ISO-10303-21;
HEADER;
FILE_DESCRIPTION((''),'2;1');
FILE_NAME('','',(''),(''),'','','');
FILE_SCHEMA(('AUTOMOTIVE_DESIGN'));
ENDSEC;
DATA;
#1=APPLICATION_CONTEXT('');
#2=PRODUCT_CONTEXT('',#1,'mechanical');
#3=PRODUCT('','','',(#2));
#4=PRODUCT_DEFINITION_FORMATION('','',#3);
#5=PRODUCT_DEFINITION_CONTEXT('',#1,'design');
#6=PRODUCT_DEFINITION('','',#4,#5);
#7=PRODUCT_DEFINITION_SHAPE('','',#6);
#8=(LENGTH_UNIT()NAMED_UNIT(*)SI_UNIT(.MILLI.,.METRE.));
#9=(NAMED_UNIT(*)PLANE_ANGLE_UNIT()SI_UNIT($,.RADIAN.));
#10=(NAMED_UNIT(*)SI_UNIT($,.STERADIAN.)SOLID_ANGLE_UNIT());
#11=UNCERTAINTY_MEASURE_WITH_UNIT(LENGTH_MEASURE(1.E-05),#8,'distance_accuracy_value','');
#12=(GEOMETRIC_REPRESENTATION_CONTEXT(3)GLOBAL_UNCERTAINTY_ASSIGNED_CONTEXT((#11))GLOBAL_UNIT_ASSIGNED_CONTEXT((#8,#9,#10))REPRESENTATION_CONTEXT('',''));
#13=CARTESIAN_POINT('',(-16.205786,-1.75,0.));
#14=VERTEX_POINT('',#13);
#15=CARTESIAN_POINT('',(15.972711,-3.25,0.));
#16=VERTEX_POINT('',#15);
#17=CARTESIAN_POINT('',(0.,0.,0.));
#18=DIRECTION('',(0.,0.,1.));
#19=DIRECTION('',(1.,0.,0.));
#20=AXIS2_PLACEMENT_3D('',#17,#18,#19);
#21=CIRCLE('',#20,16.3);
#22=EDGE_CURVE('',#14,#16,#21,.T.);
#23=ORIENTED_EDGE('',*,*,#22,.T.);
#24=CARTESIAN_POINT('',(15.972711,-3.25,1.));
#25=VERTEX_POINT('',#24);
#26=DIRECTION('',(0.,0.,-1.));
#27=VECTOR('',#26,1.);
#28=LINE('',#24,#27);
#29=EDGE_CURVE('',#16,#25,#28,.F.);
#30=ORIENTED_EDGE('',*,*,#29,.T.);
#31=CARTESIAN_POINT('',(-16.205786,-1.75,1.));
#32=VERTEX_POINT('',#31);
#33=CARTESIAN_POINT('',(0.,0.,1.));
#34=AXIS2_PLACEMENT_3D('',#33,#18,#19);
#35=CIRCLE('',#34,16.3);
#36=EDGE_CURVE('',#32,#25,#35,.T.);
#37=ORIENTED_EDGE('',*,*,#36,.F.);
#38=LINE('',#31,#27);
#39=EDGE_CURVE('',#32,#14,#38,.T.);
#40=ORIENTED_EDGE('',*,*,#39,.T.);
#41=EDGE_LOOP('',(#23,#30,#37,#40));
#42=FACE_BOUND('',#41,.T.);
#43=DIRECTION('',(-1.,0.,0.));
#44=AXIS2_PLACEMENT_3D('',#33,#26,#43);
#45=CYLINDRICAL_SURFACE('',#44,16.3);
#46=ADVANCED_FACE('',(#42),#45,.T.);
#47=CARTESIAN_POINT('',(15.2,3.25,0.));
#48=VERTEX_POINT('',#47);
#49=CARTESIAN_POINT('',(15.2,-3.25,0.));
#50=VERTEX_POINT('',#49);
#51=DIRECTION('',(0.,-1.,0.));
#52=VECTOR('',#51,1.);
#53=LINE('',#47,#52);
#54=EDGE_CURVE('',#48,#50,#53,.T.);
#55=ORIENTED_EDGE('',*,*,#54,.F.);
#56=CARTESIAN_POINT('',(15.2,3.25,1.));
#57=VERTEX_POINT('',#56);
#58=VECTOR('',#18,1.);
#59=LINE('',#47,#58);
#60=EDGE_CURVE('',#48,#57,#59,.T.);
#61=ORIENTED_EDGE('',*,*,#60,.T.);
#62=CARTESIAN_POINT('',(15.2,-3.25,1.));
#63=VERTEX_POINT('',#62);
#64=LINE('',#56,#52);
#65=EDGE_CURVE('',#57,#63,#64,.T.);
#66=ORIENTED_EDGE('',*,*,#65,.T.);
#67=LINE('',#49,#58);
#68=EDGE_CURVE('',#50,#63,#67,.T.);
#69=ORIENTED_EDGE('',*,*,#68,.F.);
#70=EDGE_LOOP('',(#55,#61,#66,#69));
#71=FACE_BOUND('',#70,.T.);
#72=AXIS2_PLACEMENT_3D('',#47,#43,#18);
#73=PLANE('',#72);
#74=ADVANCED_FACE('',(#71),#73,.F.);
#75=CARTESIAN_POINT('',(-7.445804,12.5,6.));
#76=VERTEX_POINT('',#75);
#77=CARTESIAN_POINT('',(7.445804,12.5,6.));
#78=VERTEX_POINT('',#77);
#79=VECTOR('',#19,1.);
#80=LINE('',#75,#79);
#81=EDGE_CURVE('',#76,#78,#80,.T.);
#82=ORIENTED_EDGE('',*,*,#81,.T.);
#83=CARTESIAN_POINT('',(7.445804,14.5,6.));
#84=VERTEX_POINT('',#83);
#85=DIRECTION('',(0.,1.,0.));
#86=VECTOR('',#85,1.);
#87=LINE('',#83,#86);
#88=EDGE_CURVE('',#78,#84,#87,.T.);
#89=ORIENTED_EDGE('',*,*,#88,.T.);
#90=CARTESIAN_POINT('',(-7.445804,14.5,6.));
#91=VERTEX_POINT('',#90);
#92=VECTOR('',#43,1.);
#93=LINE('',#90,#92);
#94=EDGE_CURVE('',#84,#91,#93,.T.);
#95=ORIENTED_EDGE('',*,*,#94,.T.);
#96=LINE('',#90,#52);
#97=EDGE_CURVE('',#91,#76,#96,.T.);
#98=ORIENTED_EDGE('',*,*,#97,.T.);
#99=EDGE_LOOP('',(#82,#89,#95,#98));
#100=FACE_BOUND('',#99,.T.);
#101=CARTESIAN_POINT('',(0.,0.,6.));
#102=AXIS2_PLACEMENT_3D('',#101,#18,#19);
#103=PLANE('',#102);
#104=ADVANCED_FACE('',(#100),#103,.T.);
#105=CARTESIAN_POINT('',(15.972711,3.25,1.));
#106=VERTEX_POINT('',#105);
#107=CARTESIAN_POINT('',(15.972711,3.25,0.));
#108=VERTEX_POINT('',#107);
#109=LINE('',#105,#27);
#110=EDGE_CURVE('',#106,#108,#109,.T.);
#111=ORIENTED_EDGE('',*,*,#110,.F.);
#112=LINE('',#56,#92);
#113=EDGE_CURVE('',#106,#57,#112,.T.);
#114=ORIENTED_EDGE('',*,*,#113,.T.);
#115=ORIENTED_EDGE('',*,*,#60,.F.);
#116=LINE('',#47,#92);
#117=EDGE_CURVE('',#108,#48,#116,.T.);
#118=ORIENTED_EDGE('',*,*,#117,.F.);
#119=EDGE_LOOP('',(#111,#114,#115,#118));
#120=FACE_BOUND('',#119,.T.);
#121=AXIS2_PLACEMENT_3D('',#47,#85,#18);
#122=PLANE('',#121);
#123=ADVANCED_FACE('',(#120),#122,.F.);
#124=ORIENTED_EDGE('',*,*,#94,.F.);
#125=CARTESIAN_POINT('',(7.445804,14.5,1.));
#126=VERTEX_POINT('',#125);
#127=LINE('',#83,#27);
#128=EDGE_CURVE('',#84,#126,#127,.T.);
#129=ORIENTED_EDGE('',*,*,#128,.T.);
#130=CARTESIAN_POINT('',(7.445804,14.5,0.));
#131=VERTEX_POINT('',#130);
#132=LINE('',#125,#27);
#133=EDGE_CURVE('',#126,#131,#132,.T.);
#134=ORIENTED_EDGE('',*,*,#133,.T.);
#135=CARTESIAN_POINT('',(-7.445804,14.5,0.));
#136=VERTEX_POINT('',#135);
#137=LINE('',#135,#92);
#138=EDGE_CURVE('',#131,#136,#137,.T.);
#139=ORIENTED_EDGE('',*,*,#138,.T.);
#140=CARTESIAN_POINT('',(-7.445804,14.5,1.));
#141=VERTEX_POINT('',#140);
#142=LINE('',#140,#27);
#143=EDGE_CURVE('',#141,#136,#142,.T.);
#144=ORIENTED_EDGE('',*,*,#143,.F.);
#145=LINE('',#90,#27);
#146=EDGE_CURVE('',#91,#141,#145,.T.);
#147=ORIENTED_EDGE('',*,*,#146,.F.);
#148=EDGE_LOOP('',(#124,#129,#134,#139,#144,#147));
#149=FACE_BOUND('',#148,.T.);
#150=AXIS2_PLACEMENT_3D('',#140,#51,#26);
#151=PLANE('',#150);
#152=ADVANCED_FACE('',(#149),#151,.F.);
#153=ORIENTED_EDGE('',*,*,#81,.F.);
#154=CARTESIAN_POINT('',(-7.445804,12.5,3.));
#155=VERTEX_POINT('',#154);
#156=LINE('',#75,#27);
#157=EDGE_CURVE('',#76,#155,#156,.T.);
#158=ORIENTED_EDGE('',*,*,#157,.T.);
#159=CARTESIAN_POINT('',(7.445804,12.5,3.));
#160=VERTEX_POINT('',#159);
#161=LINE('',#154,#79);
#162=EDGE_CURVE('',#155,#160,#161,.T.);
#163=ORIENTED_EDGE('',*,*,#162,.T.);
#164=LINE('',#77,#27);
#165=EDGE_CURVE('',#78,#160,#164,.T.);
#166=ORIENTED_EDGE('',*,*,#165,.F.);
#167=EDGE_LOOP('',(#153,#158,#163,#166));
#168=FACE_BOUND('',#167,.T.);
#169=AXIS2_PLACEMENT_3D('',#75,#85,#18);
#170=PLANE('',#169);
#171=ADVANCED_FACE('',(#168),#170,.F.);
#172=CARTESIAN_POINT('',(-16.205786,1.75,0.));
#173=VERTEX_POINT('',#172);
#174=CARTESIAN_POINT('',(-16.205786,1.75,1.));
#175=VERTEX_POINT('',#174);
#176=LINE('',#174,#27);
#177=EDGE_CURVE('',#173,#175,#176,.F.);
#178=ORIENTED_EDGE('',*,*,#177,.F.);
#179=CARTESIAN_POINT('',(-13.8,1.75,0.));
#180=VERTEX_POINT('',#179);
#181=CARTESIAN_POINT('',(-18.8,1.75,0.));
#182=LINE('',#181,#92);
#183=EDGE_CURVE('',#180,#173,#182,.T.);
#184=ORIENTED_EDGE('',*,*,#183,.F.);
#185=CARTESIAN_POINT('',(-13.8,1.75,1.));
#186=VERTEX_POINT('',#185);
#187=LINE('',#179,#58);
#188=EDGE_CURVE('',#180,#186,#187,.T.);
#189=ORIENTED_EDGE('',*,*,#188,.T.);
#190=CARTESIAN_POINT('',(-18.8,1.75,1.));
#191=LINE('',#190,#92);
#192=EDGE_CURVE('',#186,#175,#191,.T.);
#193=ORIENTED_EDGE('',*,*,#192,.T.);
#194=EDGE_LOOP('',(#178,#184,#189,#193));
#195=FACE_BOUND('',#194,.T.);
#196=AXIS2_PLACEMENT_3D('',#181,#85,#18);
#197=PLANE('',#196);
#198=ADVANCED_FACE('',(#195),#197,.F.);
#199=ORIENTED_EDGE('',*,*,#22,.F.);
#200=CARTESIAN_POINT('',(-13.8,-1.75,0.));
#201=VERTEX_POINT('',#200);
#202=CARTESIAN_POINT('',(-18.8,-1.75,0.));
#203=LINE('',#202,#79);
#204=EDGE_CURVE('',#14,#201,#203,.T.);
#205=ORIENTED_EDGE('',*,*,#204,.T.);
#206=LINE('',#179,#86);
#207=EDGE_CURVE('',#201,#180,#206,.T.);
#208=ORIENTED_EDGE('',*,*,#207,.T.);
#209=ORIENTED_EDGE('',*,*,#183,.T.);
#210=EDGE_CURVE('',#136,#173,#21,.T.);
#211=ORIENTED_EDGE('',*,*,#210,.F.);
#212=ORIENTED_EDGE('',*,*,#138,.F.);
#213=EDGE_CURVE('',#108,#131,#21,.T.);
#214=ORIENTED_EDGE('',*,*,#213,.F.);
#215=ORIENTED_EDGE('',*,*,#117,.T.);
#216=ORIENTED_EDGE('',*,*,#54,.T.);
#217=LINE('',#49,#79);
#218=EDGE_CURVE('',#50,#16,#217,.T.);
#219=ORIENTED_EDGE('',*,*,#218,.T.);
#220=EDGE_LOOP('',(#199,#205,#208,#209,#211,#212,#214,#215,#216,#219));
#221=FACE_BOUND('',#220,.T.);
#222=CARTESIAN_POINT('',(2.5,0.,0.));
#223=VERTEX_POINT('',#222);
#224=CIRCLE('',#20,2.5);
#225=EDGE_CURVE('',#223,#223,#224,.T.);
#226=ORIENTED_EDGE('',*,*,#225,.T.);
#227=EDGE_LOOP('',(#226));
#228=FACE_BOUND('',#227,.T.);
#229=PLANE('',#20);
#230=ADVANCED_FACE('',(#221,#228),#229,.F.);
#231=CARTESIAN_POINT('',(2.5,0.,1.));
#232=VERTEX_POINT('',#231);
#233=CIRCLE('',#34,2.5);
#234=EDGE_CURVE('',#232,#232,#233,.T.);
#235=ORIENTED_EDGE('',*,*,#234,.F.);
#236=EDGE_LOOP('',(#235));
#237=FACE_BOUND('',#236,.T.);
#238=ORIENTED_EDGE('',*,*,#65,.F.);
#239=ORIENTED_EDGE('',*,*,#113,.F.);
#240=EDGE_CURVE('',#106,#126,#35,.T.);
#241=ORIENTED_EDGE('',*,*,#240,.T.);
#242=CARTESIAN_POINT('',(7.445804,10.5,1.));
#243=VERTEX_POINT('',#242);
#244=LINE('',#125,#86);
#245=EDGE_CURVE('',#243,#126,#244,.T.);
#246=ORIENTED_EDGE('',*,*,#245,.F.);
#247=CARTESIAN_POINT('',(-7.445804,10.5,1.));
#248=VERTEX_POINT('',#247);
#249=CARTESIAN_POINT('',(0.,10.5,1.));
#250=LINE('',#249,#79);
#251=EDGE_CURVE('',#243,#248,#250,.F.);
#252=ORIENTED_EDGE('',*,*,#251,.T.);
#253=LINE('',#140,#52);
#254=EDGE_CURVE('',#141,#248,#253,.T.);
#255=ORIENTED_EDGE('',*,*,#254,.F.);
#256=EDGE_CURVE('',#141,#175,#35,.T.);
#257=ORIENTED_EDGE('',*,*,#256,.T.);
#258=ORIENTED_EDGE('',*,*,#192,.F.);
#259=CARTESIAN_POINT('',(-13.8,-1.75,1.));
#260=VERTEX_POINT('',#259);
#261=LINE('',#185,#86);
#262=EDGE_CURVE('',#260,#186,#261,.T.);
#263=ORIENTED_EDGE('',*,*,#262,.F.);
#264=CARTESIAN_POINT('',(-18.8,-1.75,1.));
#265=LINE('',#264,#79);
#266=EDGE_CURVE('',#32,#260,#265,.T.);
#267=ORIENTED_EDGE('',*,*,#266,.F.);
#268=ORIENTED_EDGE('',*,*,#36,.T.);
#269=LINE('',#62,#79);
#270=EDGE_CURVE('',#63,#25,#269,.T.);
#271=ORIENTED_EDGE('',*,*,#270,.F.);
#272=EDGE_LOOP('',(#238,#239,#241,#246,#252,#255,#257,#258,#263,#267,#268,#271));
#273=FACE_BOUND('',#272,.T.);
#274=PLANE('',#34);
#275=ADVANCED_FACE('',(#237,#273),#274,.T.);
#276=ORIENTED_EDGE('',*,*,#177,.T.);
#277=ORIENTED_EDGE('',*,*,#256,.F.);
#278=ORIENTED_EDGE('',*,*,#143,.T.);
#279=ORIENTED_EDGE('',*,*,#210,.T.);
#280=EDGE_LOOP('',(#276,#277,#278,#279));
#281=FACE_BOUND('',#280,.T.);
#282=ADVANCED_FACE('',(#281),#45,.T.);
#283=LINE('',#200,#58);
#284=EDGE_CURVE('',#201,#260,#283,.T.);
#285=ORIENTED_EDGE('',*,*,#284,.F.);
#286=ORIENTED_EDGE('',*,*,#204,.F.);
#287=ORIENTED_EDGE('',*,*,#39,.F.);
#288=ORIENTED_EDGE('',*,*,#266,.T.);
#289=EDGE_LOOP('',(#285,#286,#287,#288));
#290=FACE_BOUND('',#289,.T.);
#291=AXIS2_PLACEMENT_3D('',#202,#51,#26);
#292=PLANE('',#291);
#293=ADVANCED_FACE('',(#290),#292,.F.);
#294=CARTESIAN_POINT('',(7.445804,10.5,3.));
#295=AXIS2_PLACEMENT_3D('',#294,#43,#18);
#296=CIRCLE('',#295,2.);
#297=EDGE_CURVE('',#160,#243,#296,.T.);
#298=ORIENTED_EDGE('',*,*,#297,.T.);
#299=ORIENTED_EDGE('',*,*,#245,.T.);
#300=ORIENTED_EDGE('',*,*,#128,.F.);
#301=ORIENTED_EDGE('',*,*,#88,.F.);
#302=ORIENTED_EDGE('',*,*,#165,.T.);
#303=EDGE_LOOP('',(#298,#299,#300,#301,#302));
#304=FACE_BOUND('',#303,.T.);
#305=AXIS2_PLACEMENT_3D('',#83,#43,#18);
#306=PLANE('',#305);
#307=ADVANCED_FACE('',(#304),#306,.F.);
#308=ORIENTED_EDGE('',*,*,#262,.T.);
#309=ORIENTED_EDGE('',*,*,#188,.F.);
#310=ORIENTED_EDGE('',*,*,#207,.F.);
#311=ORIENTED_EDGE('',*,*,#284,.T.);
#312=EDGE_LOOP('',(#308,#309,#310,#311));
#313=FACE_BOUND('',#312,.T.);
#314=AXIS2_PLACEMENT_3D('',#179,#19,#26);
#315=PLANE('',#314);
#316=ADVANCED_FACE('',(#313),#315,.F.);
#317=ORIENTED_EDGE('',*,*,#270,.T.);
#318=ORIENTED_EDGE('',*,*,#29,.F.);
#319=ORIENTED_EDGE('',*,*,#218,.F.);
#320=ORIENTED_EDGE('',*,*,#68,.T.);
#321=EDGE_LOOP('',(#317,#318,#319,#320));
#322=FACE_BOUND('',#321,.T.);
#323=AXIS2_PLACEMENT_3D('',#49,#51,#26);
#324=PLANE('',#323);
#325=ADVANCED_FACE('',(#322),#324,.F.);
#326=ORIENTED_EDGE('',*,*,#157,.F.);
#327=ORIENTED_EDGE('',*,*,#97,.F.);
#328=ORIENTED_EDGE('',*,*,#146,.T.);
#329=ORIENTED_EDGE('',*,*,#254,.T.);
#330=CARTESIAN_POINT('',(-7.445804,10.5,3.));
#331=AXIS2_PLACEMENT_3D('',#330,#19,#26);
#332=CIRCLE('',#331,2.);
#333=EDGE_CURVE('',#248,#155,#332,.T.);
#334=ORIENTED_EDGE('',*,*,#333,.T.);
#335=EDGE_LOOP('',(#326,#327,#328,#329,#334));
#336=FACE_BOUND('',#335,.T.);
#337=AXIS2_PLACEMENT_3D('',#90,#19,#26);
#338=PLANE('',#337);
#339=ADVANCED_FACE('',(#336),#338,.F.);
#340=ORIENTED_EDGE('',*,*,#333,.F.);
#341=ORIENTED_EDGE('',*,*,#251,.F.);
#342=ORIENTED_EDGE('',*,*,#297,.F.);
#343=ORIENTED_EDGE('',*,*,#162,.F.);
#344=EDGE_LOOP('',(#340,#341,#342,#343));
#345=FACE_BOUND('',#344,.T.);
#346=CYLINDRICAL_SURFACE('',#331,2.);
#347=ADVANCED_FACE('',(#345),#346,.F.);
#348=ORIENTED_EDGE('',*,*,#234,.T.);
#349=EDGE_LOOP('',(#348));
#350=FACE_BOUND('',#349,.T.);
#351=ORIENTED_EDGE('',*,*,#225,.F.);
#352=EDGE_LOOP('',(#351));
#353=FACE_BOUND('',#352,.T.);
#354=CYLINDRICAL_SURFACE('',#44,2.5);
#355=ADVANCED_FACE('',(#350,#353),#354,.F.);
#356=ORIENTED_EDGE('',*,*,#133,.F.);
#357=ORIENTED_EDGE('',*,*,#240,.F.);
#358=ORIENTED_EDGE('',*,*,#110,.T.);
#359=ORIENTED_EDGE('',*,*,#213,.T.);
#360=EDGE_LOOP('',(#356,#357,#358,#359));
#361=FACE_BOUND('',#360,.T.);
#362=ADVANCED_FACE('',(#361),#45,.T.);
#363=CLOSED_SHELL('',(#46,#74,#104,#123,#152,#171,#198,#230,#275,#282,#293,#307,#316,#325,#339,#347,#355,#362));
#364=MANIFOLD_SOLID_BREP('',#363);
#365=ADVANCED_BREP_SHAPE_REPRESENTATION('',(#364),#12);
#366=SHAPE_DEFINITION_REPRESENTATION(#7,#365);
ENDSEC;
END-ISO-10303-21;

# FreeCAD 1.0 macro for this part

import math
import FreeCAD as App
import Part
import Sketcher


def edges_at(feature, points):
    """Names of the edges that pass closest to the given points."""
    edges = feature.Shape.Edges
    near = lambda p: min(range(len(edges)), key=lambda i: edges[i].distToShape(Part.Vertex(*p))[0])
    return sorted({f"Edge{near(p) + 1}" for p in points})

doc = App.newDocument("Part")
body = doc.addObject("PartDesign::Body", "Body")

# Sketch on XY plane
sketch1 = doc.addObject("Sketcher::SketchObject", "Sketch")
body.addObject(sketch1)
sketch1.AttachmentSupport = (doc.XY_Plane, [""])
sketch1.MapMode = "FlatFace"
sketch1.addGeometry([
    Part.LineSegment(App.Vector(7.4, 14.5, 0), App.Vector(-7.4, 14.5, 0)),
    Part.ArcOfCircle(Part.Circle(App.Vector(0, 0, 0), App.Vector(0, 0, 1), 16.3), math.radians(117), math.radians(423)),
    Part.Circle(App.Vector(0, 0, 0), App.Vector(0, 0, 1), 2.5),
], False)
sketch1.addConstraint([
    Sketcher.Constraint("Coincident", 0, 1, 1, 2),
    Sketcher.Constraint("Coincident", 1, 1, 0, 2),
    Sketcher.Constraint("Horizontal", 0),
    Sketcher.Constraint("Coincident", 1, 3, -1, 1),
    Sketcher.Constraint("Coincident", 2, 3, -1, 1),
    Sketcher.Constraint("Diameter", 2, 5.0),
    Sketcher.Constraint("Radius", 1, 16.3),
    Sketcher.Constraint("DistanceY", -1, 1, 0, 1, 14.5),
])
pad1 = doc.addObject("PartDesign::Pad", "Pad")
body.addObject(pad1)
pad1.Profile = sketch1
pad1.Length = 1

# Sketch on XY plane
sketch2 = doc.addObject("Sketcher::SketchObject", "Sketch001")
body.addObject(sketch2)
sketch2.AttachmentSupport = (doc.XY_Plane, [""])
sketch2.MapMode = "FlatFace"
sketch2.AttachmentOffset = App.Placement(App.Vector(0, 0, 1), App.Rotation())
sketch2.addGeometry([
    Part.LineSegment(App.Vector(-18.8, 1.8, 0), App.Vector(-18.8, -1.8, 0)),  # 0
    Part.LineSegment(App.Vector(-18.8, -1.8, 0), App.Vector(-13.8, -1.8, 0)),  # 1
    Part.LineSegment(App.Vector(-13.8, -1.8, 0), App.Vector(-13.8, 1.8, 0)),  # 2
    Part.LineSegment(App.Vector(-13.8, 1.8, 0), App.Vector(-18.8, 1.8, 0)),  # 3
    Part.LineSegment(App.Vector(15.2, 3.2, 0), App.Vector(15.2, -3.2, 0)),  # 4
    Part.LineSegment(App.Vector(15.2, -3.2, 0), App.Vector(17.2, -3.2, 0)),  # 5
    Part.LineSegment(App.Vector(17.2, -3.2, 0), App.Vector(17.2, 3.2, 0)),  # 6
    Part.LineSegment(App.Vector(17.2, 3.2, 0), App.Vector(15.2, 3.2, 0)),  # 7
], False)
sketch2.addConstraint([
    Sketcher.Constraint("Coincident", 0, 2, 1, 1),
    Sketcher.Constraint("Coincident", 1, 2, 2, 1),
    Sketcher.Constraint("Coincident", 2, 2, 3, 1),
    Sketcher.Constraint("Coincident", 3, 2, 0, 1),
    Sketcher.Constraint("Coincident", 4, 2, 5, 1),
    Sketcher.Constraint("Coincident", 5, 2, 6, 1),
    Sketcher.Constraint("Coincident", 6, 2, 7, 1),
    Sketcher.Constraint("Coincident", 7, 2, 4, 1),
    Sketcher.Constraint("Vertical", 0),
    Sketcher.Constraint("Horizontal", 1),
    Sketcher.Constraint("Vertical", 2),
    Sketcher.Constraint("Horizontal", 3),
    Sketcher.Constraint("Vertical", 4),
    Sketcher.Constraint("Horizontal", 5),
    Sketcher.Constraint("Vertical", 6),
    Sketcher.Constraint("Horizontal", 7),
    Sketcher.Constraint("DistanceX", 1, 1, 1, 2, 5.0),
    Sketcher.Constraint("DistanceX", 5, 1, 5, 2, 2.0),
    Sketcher.Constraint("DistanceY", 0, 2, 0, 1, 3.5),
    Sketcher.Constraint("DistanceY", 4, 2, 4, 1, 6.5),
    Sketcher.Constraint("DistanceX", 1, 2, 4, 2, 29.0),
    Sketcher.Constraint("DistanceY", 4, 2, 2, 2, 5.0),
    Sketcher.Constraint("DistanceX", 0, 2, -1, 1, 18.8),
    Sketcher.Constraint("DistanceY", 0, 2, -1, 1, 1.75),
])
pocket1 = doc.addObject("PartDesign::Pocket", "Pocket")
body.addObject(pocket1)
pocket1.Profile = sketch2
pocket1.Type = "ThroughAll"

# Sketch on XY plane
sketch3 = doc.addObject("Sketcher::SketchObject", "Sketch002")
body.addObject(sketch3)
sketch3.AttachmentSupport = (doc.XY_Plane, [""])
sketch3.MapMode = "FlatFace"
sketch3.AttachmentOffset = App.Placement(App.Vector(0, 0, 1), App.Rotation())
sketch3.addGeometry([
    Part.LineSegment(App.Vector(-7.4, 14.5, 0), App.Vector(-7.4, 12.5, 0)),
    Part.LineSegment(App.Vector(-7.4, 12.5, 0), App.Vector(7.4, 12.5, 0)),
    Part.LineSegment(App.Vector(7.4, 12.5, 0), App.Vector(7.4, 14.5, 0)),
    Part.LineSegment(App.Vector(7.4, 14.5, 0), App.Vector(-7.4, 14.5, 0)),
], False)
sketch3.addConstraint([
    Sketcher.Constraint("Coincident", 0, 2, 1, 1),
    Sketcher.Constraint("Coincident", 1, 2, 2, 1),
    Sketcher.Constraint("Coincident", 2, 2, 3, 1),
    Sketcher.Constraint("Coincident", 3, 2, 0, 1),
    Sketcher.Constraint("Vertical", 0),
    Sketcher.Constraint("Horizontal", 1),
    Sketcher.Constraint("Vertical", 2),
    Sketcher.Constraint("Horizontal", 3),
    Sketcher.Constraint("DistanceY", 0, 2, 0, 1, 2.0),
    Sketcher.Constraint("DistanceY", -1, 1, 0, 2, 12.5),
    Sketcher.Constraint("DistanceX", 1, 1, 1, 2, 14.891608),
    Sketcher.Constraint("DistanceX", 0, 2, -1, 1, 7.445804),
])
pad2 = doc.addObject("PartDesign::Pad", "Pad001")
body.addObject(pad2)
pad2.Profile = sketch3
pad2.Length = 5
doc.recompute()

fillet = doc.addObject("PartDesign::Fillet", "Fillet")
body.addObject(fillet)
fillet.Base = (pad2, edges_at(pad2, [(0, 12.5, 1)]))
fillet.Radius = 2

doc.recompute()
